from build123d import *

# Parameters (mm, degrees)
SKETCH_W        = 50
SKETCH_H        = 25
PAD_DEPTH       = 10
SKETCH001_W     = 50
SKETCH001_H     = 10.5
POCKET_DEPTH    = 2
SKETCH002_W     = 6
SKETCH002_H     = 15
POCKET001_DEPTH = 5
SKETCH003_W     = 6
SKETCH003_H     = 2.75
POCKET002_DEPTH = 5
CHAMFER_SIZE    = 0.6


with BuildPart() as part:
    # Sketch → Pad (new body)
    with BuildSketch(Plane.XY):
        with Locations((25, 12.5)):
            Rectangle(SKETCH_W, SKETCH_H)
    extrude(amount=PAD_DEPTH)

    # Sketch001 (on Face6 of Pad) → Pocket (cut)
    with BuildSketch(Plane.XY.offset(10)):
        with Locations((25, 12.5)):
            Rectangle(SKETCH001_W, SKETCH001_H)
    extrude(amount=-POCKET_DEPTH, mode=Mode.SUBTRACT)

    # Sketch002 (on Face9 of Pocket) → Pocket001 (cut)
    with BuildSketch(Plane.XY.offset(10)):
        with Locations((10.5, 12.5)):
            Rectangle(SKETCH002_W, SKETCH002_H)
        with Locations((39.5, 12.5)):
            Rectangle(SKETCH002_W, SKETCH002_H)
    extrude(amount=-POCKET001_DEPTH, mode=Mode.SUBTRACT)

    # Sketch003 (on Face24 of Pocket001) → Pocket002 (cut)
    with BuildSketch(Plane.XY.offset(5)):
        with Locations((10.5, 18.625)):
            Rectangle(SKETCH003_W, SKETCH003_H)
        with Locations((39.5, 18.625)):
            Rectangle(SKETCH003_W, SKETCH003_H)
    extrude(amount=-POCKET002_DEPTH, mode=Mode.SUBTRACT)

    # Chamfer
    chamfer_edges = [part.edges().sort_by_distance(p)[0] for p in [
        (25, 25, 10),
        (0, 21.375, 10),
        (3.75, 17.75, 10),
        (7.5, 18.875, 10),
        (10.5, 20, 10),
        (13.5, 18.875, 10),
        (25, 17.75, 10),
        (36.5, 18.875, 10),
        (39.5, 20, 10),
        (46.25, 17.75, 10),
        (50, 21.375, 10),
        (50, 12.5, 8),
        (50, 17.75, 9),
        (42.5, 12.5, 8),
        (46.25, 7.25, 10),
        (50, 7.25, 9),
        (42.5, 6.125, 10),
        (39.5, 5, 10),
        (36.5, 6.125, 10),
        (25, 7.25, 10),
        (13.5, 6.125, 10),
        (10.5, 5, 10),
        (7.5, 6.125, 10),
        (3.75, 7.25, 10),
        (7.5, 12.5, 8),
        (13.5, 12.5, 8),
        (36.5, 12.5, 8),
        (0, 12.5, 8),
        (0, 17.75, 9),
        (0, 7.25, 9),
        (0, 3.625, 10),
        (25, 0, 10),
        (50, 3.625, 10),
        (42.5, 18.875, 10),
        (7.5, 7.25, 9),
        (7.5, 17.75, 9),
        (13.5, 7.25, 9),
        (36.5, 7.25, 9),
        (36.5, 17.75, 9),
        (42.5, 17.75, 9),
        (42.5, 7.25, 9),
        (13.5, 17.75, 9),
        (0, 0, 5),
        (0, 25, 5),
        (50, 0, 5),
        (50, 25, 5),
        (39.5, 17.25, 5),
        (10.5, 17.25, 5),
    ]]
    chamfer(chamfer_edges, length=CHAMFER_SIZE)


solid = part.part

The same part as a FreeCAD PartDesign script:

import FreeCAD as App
import Part
import Sketcher

V = App.Vector
Q = App.Units.Quantity


def edges_at(feature, points):
    """Names of the edges that pass closest to the given points."""
    edges = feature.Shape.Edges
    near = lambda p: min(range(len(edges)), key=lambda i: edges[i].distToShape(Part.Vertex(*p))[0])
    return sorted({f"Edge{near(p) + 1}" for p in points})

doc = App.newDocument("Part")
body = doc.addObject("PartDesign::Body", "Body")

# Sketch on XY plane
sketch1 = body.newObject("Sketcher::SketchObject", "Sketch")
sketch1.AttachmentSupport = (doc.getObject("XY_Plane"), [""])
sketch1.MapMode = "FlatFace"
sketch1.addGeometry([
    Part.LineSegment(V(0, 25, 0), V(0, 0, 0)),
    Part.LineSegment(V(0, 0, 0), V(50, 0, 0)),
    Part.LineSegment(V(50, 0, 0), V(50, 25, 0)),
    Part.LineSegment(V(50, 25, 0), V(0, 25, 0)),
], False)
sketch1.addConstraint([
    Sketcher.Constraint("Coincident", 0, 2, 1, 1),
    Sketcher.Constraint("Coincident", 1, 2, 2, 1),
    Sketcher.Constraint("Coincident", 2, 2, 3, 1),
    Sketcher.Constraint("Coincident", 3, 2, 0, 1),
    Sketcher.Constraint("Vertical", 0),
    Sketcher.Constraint("Horizontal", 1),
    Sketcher.Constraint("Vertical", 2),
    Sketcher.Constraint("Horizontal", 3),
    Sketcher.Constraint("Coincident", 0, 2, -1, 1),
    Sketcher.Constraint("DistanceX", 1, 1, 1, 2, Q("50 mm")),
    Sketcher.Constraint("DistanceY", 0, 2, 0, 1, Q("25 mm")),
])
pad1 = body.newObject("PartDesign::Pad", "Pad")
pad1.Profile = sketch1
pad1.Length = 10

# Sketch on XY plane
sketch2 = body.newObject("Sketcher::SketchObject", "Sketch001")
sketch2.AttachmentSupport = (doc.getObject("XY_Plane"), [""])
sketch2.MapMode = "FlatFace"
sketch2.AttachmentOffset = App.Placement(V(0, 0, 10), App.Rotation())
sketch2.addGeometry([
    Part.LineSegment(V(0, 18, 0), V(0, 7, 0)),
    Part.LineSegment(V(0, 7, 0), V(50, 7, 0)),
    Part.LineSegment(V(50, 7, 0), V(50, 18, 0)),
    Part.LineSegment(V(50, 18, 0), V(0, 18, 0)),
], False)
sketch2.addConstraint([
    Sketcher.Constraint("Coincident", 0, 2, 1, 1),
    Sketcher.Constraint("Coincident", 1, 2, 2, 1),
    Sketcher.Constraint("Coincident", 2, 2, 3, 1),
    Sketcher.Constraint("Coincident", 3, 2, 0, 1),
    Sketcher.Constraint("Vertical", 0),
    Sketcher.Constraint("Horizontal", 1),
    Sketcher.Constraint("Vertical", 2),
    Sketcher.Constraint("Horizontal", 3),
    Sketcher.Constraint("PointOnObject", 0, 2, -2),
    Sketcher.Constraint("DistanceX", 1, 1, 1, 2, Q("50 mm")),
    Sketcher.Constraint("DistanceY", 0, 2, 0, 1, Q("10.5 mm")),
    Sketcher.Constraint("DistanceY", -1, 1, 0, 2, Q("7.25 mm")),
])
pocket1 = body.newObject("PartDesign::Pocket", "Pocket")
pocket1.Profile = sketch2
pocket1.Length = 2

# Sketch on XY plane
sketch3 = body.newObject("Sketcher::SketchObject", "Sketch002")
sketch3.AttachmentSupport = (doc.getObject("XY_Plane"), [""])
sketch3.MapMode = "FlatFace"
sketch3.AttachmentOffset = App.Placement(V(0, 0, 10), App.Rotation())
sketch3.addGeometry([
    Part.LineSegment(V(8, 20, 0), V(8, 5, 0)),  # 0
    Part.LineSegment(V(8, 5, 0), V(14, 5, 0)),  # 1
    Part.LineSegment(V(14, 5, 0), V(14, 20, 0)),  # 2
    Part.LineSegment(V(14, 20, 0), V(8, 20, 0)),  # 3
    Part.LineSegment(V(36, 20, 0), V(36, 5, 0)),  # 4
    Part.LineSegment(V(36, 5, 0), V(42, 5, 0)),  # 5
    Part.LineSegment(V(42, 5, 0), V(42, 20, 0)),  # 6
    Part.LineSegment(V(42, 20, 0), V(36, 20, 0)),  # 7
], False)
sketch3.addConstraint([
    Sketcher.Constraint("Coincident", 0, 2, 1, 1),
    Sketcher.Constraint("Coincident", 1, 2, 2, 1),
    Sketcher.Constraint("Coincident", 2, 2, 3, 1),
    Sketcher.Constraint("Coincident", 3, 2, 0, 1),
    Sketcher.Constraint("Coincident", 4, 2, 5, 1),
    Sketcher.Constraint("Coincident", 5, 2, 6, 1),
    Sketcher.Constraint("Coincident", 6, 2, 7, 1),
    Sketcher.Constraint("Coincident", 7, 2, 4, 1),
    Sketcher.Constraint("Vertical", 0),
    Sketcher.Constraint("Horizontal", 1),
    Sketcher.Constraint("Vertical", 2),
    Sketcher.Constraint("Horizontal", 3),
    Sketcher.Constraint("Vertical", 4),
    Sketcher.Constraint("Horizontal", 5),
    Sketcher.Constraint("Vertical", 6),
    Sketcher.Constraint("Horizontal", 7),
    Sketcher.Constraint("Horizontal", 1, 2, 4, 2),
    Sketcher.Constraint("Horizontal", 3, 2, 6, 2),
    Sketcher.Constraint("Equal", 3, 5),
    Sketcher.Constraint("DistanceX", 1, 1, 1, 2, Q("6 mm")),
    Sketcher.Constraint("DistanceY", 0, 2, 0, 1, Q("15 mm")),
    Sketcher.Constraint("DistanceY", -1, 1, 0, 2, Q("5 mm")),
    Sketcher.Constraint("DistanceX", 1, 2, 4, 2, Q("23 mm")),
    Sketcher.Constraint("DistanceX", -1, 1, 0, 2, Q("7.5 mm")),
])
pocket2 = body.newObject("PartDesign::Pocket", "Pocket001")
pocket2.Profile = sketch3
pocket2.Length = 5

# Sketch on XY plane
sketch4 = body.newObject("Sketcher::SketchObject", "Sketch003")
sketch4.AttachmentSupport = (doc.getObject("XY_Plane"), [""])
sketch4.MapMode = "FlatFace"
sketch4.AttachmentOffset = App.Placement(V(0, 0, 5), App.Rotation())
sketch4.addGeometry([
    Part.LineSegment(V(7.5, 20, 0), V(7.5, 17.2, 0)),  # 0
    Part.LineSegment(V(7.5, 17.2, 0), V(13.5, 17.2, 0)),  # 1
    Part.LineSegment(V(13.5, 17.2, 0), V(13.5, 20, 0)),  # 2
    Part.LineSegment(V(13.5, 20, 0), V(7.5, 20, 0)),  # 3
    Part.LineSegment(V(36.5, 20, 0), V(36.5, 17.2, 0)),  # 4
    Part.LineSegment(V(36.5, 17.2, 0), V(42.5, 17.2, 0)),  # 5
    Part.LineSegment(V(42.5, 17.2, 0), V(42.5, 20, 0)),  # 6
    Part.LineSegment(V(42.5, 20, 0), V(36.5, 20, 0)),  # 7
], False)
sketch4.addConstraint([
    Sketcher.Constraint("Coincident", 0, 2, 1, 1),
    Sketcher.Constraint("Coincident", 1, 2, 2, 1),
    Sketcher.Constraint("Coincident", 2, 2, 3, 1),
    Sketcher.Constraint("Coincident", 3, 2, 0, 1),
    Sketcher.Constraint("Coincident", 4, 2, 5, 1),
    Sketcher.Constraint("Coincident", 5, 2, 6, 1),
    Sketcher.Constraint("Coincident", 6, 2, 7, 1),
    Sketcher.Constraint("Coincident", 7, 2, 4, 1),
    Sketcher.Constraint("Vertical", 0),
    Sketcher.Constraint("Horizontal", 1),
    Sketcher.Constraint("Vertical", 2),
    Sketcher.Constraint("Horizontal", 3),
    Sketcher.Constraint("Vertical", 4),
    Sketcher.Constraint("Horizontal", 5),
    Sketcher.Constraint("Vertical", 6),
    Sketcher.Constraint("Horizontal", 7),
    Sketcher.Constraint("Horizontal", 1, 2, 4, 2),
    Sketcher.Constraint("Horizontal", 3, 2, 6, 2),
    Sketcher.Constraint("Equal", 3, 5),
    Sketcher.Constraint("DistanceX", 1, 1, 1, 2, Q("6 mm")),
    Sketcher.Constraint("DistanceY", -1, 1, 2, 2, Q("20 mm")),
    Sketcher.Constraint("DistanceX", 1, 2, 4, 2, Q("23 mm")),
    Sketcher.Constraint("DistanceY", 0, 2, 0, 1, Q("2.75 mm")),
    Sketcher.Constraint("DistanceX", -1, 1, 0, 2, Q("7.5 mm")),
])
pocket3 = body.newObject("PartDesign::Pocket", "Pocket002")
pocket3.Profile = sketch4
pocket3.Length = 5
doc.recompute()

chamfer = body.newObject("PartDesign::Chamfer", "Chamfer")
chamfer.Base = (pocket3, edges_at(pocket3, [
    (25, 25, 10),
    (0, 21.375, 10),
    (3.75, 17.75, 10),
    (7.5, 18.875, 10),
    (10.5, 20, 10),
    (13.5, 18.875, 10),
    (25, 17.75, 10),
    (36.5, 18.875, 10),
    (39.5, 20, 10),
    (46.25, 17.75, 10),
    (50, 21.375, 10),
    (50, 12.5, 8),
    (50, 17.75, 9),
    (42.5, 12.5, 8),
    (46.25, 7.25, 10),
    (50, 7.25, 9),
    (42.5, 6.125, 10),
    (39.5, 5, 10),
    (36.5, 6.125, 10),
    (25, 7.25, 10),
    (13.5, 6.125, 10),
    (10.5, 5, 10),
    (7.5, 6.125, 10),
    (3.75, 7.25, 10),
    (7.5, 12.5, 8),
    (13.5, 12.5, 8),
    (36.5, 12.5, 8),
    (0, 12.5, 8),
    (0, 17.75, 9),
    (0, 7.25, 9),
    (0, 3.625, 10),
    (25, 0, 10),
    (50, 3.625, 10),
    (42.5, 18.875, 10),
    (7.5, 7.25, 9),
    (7.5, 17.75, 9),
    (13.5, 7.25, 9),
    (36.5, 7.25, 9),
    (36.5, 17.75, 9),
    (42.5, 17.75, 9),
    (42.5, 7.25, 9),
    (13.5, 17.75, 9),
    (0, 0, 5),
    (0, 25, 5),
    (50, 0, 5),
    (50, 25, 5),
    (39.5, 17.25, 5),
    (10.5, 17.25, 5),
]))
chamfer.Size = 0.6

doc.recompute()
